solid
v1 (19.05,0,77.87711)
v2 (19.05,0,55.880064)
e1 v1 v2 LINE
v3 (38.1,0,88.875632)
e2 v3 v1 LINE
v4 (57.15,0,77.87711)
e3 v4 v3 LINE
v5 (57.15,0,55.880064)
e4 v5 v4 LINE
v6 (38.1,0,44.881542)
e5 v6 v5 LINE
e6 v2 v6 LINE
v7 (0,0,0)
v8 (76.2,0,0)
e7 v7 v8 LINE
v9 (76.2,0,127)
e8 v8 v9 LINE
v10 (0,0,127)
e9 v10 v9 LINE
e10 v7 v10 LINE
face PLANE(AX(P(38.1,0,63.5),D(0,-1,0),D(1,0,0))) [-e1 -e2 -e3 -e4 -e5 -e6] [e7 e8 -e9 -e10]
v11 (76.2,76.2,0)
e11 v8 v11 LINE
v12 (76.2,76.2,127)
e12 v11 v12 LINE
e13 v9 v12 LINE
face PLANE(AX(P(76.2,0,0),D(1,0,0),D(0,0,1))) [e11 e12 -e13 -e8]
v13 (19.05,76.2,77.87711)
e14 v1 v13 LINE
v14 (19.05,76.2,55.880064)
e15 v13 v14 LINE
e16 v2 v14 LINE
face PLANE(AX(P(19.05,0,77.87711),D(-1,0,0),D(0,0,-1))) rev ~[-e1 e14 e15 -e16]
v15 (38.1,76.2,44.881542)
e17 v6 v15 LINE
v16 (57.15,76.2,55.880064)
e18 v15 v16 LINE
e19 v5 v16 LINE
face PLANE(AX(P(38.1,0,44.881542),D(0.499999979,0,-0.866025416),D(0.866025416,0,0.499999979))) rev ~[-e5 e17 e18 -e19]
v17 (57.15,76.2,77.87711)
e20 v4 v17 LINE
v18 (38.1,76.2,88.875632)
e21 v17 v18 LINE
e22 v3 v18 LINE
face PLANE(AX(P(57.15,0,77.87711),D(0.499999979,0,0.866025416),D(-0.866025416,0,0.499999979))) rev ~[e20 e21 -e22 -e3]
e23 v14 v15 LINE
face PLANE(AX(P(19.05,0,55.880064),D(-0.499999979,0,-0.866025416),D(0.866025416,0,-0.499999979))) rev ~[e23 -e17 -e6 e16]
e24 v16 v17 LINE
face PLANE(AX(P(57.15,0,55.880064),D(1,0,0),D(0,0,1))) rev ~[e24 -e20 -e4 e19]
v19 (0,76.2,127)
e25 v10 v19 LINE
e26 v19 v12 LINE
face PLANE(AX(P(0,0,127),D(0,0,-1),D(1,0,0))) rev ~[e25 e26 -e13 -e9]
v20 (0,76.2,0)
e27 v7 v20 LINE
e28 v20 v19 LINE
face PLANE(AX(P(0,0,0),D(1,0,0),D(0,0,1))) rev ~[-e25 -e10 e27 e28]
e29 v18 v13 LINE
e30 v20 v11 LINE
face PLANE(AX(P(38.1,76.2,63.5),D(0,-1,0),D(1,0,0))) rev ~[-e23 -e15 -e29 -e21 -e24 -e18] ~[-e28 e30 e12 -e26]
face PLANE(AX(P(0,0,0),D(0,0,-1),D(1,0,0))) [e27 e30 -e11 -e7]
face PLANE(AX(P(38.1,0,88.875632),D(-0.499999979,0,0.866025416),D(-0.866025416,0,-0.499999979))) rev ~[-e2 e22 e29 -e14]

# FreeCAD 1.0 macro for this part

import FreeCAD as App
import Part
import Sketcher

V = App.Vector
Q = App.Units.Quantity


def add_polygon(sketch, points):
    """Adds a closed chain of lines whose ends are joined by coincident constraints."""
    first, n = sketch.GeometryCount, len(points)
    for a, b in zip(points, points[1:] + points[:1]):
        sketch.addGeometry(Part.LineSegment(App.Vector(*a, 0), App.Vector(*b, 0)), False)
    for i in range(n):
        sketch.addConstraint(Sketcher.Constraint("Coincident", first + i, 2, first + (i + 1) % n, 1))

doc = App.newDocument("Part")
body = doc.addObject("PartDesign::Body", "Body")

sketch1 = body.newObject("Sketcher::SketchObject", "Sketch")
sketch1.AttachmentSupport = (doc.getObject("XZ_Plane"), [""])
sketch1.MapMode = "FlatFace"
add_polygon(sketch1, [(0, 127), (0, 0), (76.2, 0), (76.2, 127)])
sketch1.addConstraint([
    Sketcher.Constraint("Vertical", 0),
    Sketcher.Constraint("Horizontal", 1),
    Sketcher.Constraint("Vertical", 2),
    Sketcher.Constraint("Horizontal", 3),
    Sketcher.Constraint("Coincident", 0, 2, -1, 1),
    Sketcher.Constraint("DistanceX", 1, 1, 1, 2, Q("3 in")),
    Sketcher.Constraint("DistanceY", 0, 2, 0, 1, Q("5 in")),
])
pad1 = body.newObject("PartDesign::Pad", "Pad")
pad1.Profile = sketch1
pad1.Length = Q("3 in")
pad1.Reversed = True

sketch2 = body.newObject("Sketcher::SketchObject", "Sketch001")
sketch2.AttachmentSupport = (doc.getObject("XZ_Plane"), [""])
sketch2.MapMode = "FlatFace"
add_polygon(sketch2, [(57.15, 55.880064), (57.15, 77.87711), (38.1, 88.875632), (19.05, 77.87711), (19.05, 55.880064), (38.1, 44.881542)])
sketch2.addConstraint([
    Sketcher.Constraint("Vertical", 0),
    Sketcher.Constraint("Vertical", 3),
    Sketcher.Constraint("Parallel", 1, 4),
    Sketcher.Constraint("Parallel", 2, 5),
    Sketcher.Constraint("Horizontal", 0, 2, 2, 2),
    Sketcher.Constraint("Horizontal", 3, 2, 5, 2),
    Sketcher.Constraint("Vertical", 1, 2, 4, 2),
    Sketcher.Constraint("Angle", 1, Q("150.000001 deg")),
    Sketcher.Constraint("DistanceX", -1, 1, 1, 2, Q("1.5 in")),
    Sketcher.Constraint("DistanceX", 2, 2, 0, 2, Q("1.5 in")),
    Sketcher.Constraint("DistanceY", 0, 1, 0, 2, Q("21.997046 mm")),
    Sketcher.Constraint("DistanceY", -1, 1, 0, 2, Q("77.87711 mm")),
])
pocket1 = body.newObject("PartDesign::Pocket", "Pocket")
pocket1.Profile = sketch2
pocket1.Type = "ThroughAll"

doc.recompute()
